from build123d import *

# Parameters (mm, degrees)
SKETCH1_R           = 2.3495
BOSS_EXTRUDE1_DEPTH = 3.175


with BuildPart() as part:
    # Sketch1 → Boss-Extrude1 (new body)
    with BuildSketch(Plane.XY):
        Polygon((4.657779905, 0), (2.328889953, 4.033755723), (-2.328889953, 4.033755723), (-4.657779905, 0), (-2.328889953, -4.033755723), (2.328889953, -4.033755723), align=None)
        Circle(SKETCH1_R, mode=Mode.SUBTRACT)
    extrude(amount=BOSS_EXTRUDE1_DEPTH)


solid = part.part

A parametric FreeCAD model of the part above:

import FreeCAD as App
import Part
import Sketcher
Q = App.Units.Quantity

doc = App.newDocument("Part")
body = doc.addObject("PartDesign::Body", "Body")

# Sketch on XY plane
sketch1 = body.newObject("Sketcher::SketchObject", "Sketch")
sketch1.AttachmentSupport = (doc.getObject("XY_Plane"), [""])
sketch1.MapMode = "FlatFace"
sketch1.addGeometry([
    Part.LineSegment(App.Vector(4.7, 0, 0), App.Vector(2.3, 4, 0)),  # 0
    Part.LineSegment(App.Vector(2.3, 4, 0), App.Vector(-2.3, 4, 0)),  # 1
    Part.LineSegment(App.Vector(-2.3, 4, 0), App.Vector(-4.7, 0, 0)),  # 2
    Part.LineSegment(App.Vector(-4.7, 0, 0), App.Vector(-2.3, -4, 0)),  # 3
    Part.LineSegment(App.Vector(-2.3, -4, 0), App.Vector(2.3, -4, 0)),  # 4
    Part.LineSegment(App.Vector(2.3, -4, 0), App.Vector(4.7, 0, 0)),  # 5
    Part.Circle(App.Vector(0, 0, 0), App.Vector(0, 0, 1), 2.3),  # 6
], False)
sketch1.addConstraint([
    Sketcher.Constraint("Coincident", 0, 2, 1, 1),
    Sketcher.Constraint("Coincident", 1, 2, 2, 1),
    Sketcher.Constraint("Coincident", 2, 2, 3, 1),
    Sketcher.Constraint("Coincident", 3, 2, 4, 1),
    Sketcher.Constraint("Coincident", 4, 2, 5, 1),
    Sketcher.Constraint("Coincident", 5, 2, 0, 1),
    Sketcher.Constraint("Horizontal", 1),
    Sketcher.Constraint("Horizontal", 4),
    Sketcher.Constraint("Coincident", 6, 3, -1, 1),
    Sketcher.Constraint("Symmetric", 0, 2, 3, 2, -1, 1),
    Sketcher.Constraint("Symmetric", 2, 2, 5, 2, -1, 1),
    Sketcher.Constraint("PointOnObject", 2, 2, -1),
    Sketcher.Constraint("Parallel", 2, 5),
    Sketcher.Constraint("Vertical", 1, 2, 3, 2),
    Sketcher.Constraint("Diameter", 6, Q("0.185 in")),
    Sketcher.Constraint("Angle", 0, Q("120 deg")),
    Sketcher.Constraint("DistanceX", 1, 2, 1, 1, Q("4.65778 mm")),
    Sketcher.Constraint("Distance", 0, Q("4.65778 mm")),
])
pad1 = body.newObject("PartDesign::Pad", "Pad")
pad1.Profile = sketch1
pad1.Length = Q("0.125 in")

doc.recompute()
